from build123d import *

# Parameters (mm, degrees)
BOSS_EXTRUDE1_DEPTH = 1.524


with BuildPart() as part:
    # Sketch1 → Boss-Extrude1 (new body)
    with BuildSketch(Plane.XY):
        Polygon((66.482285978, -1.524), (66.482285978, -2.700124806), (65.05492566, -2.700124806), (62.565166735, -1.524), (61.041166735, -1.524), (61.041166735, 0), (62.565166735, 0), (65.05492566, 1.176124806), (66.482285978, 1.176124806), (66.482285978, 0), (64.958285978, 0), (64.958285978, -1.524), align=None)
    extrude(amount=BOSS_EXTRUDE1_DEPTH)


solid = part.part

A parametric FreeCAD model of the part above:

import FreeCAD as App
import Part
import Sketcher
Q = App.Units.Quantity


def add_polygon(sketch, points):
    """Adds a closed chain of lines whose ends are joined by coincident constraints."""
    first, n = sketch.GeometryCount, len(points)
    for a, b in zip(points, points[1:] + points[:1]):
        sketch.addGeometry(Part.LineSegment(App.Vector(*a, 0), App.Vector(*b, 0)), False)
    for i in range(n):
        sketch.addConstraint(Sketcher.Constraint("Coincident", first + i, 2, first + (i + 1) % n, 1))

doc = App.newDocument("Part")
body = doc.addObject("PartDesign::Body", "Body")

sketch1 = body.newObject("Sketcher::SketchObject", "Sketch")
sketch1.AttachmentSupport = (doc.getObject("XY_Plane"), [""])
sketch1.MapMode = "FlatFace"
add_polygon(sketch1, [(66.5, -2.7), (66.5, -1.5), (65, -1.5), (65, 0), (66.5, 0), (66.5, 1.2), (65.1, 1.2), (62.6, 0), (61, 0), (61, -1.5), (62.6, -1.5), (65.1, -2.7)])
sketch1.addConstraint([
    Sketcher.Constraint("Vertical", 0),
    Sketcher.Constraint("Horizontal", 1),
    Sketcher.Constraint("Vertical", 2),
    Sketcher.Constraint("Horizontal", 3),
    Sketcher.Constraint("Vertical", 4),
    Sketcher.Constraint("Horizontal", 5),
    Sketcher.Constraint("Horizontal", 7),
    Sketcher.Constraint("Vertical", 8),
    Sketcher.Constraint("Horizontal", 9),
    Sketcher.Constraint("Horizontal", 11),
    Sketcher.Constraint("PointOnObject", 2, 2, -1),
    Sketcher.Constraint("PointOnObject", 6, 2, -1),
    Sketcher.Constraint("Horizontal", 1, 2, 8, 2),
    Sketcher.Constraint("Vertical", 0, 2, 3, 2),
    Sketcher.Constraint("Vertical", 6, 2, 9, 2),
    Sketcher.Constraint("Vertical", 5, 2, 10, 2),
    Sketcher.Constraint("Equal", 3, 7),
    Sketcher.Constraint("Equal", 9, 2),
    Sketcher.Constraint("Equal", 0, 4),
    Sketcher.Constraint("DistanceX", 1, 2, 1, 1, Q("0.06 in")),
    Sketcher.Constraint("DistanceX", 5, 2, 5, 1, 1.42736),
    Sketcher.Constraint("DistanceY", 0, 1, 0, 2, 1.176125),
    Sketcher.Constraint("DistanceX", 6, 2, 2, 2, 2.393119),
    Sketcher.Constraint("DistanceX", -1, 1, 0, 2, 66.482286),
])
pad1 = body.newObject("PartDesign::Pad", "Pad")
pad1.Profile = sketch1
pad1.Length = Q("0.06 in")

doc.recompute()
